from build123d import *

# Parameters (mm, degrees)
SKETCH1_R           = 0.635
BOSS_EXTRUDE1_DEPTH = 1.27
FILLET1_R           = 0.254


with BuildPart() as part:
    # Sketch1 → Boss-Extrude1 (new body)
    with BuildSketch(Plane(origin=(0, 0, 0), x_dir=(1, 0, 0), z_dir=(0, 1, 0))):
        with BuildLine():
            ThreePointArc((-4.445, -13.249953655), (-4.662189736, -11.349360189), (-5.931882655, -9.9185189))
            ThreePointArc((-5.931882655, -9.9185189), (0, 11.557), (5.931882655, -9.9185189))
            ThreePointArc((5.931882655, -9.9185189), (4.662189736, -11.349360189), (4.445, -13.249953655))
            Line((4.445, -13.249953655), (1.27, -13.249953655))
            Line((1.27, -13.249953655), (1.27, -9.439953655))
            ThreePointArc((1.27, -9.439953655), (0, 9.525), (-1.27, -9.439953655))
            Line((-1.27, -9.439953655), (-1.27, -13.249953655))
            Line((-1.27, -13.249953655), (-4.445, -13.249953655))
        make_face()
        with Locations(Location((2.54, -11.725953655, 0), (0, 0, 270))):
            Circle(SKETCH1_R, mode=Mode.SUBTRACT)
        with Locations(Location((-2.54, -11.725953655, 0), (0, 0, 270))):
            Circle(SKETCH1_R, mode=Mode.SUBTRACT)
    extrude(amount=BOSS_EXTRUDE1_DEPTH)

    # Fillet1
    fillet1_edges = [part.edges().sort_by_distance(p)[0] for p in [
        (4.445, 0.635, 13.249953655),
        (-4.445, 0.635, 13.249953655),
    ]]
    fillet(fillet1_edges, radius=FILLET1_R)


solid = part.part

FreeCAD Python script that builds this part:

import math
import FreeCAD as App
import Part
import Sketcher
from FreeCAD import Vector
Q = App.Units.Quantity


def edges_at(feature, points):
    """Names of the edges that pass closest to the given points."""
    edges = feature.Shape.Edges
    near = lambda p: min(range(len(edges)), key=lambda i: edges[i].distToShape(Part.Vertex(*p))[0])
    return sorted({f"Edge{near(p) + 1}" for p in points})

doc = App.newDocument("Part")
body = doc.addObject("PartDesign::Body", "Body")

# Sketch on XZ plane
sketch1 = body.newObject("Sketcher::SketchObject", "Sketch")
sketch1.AttachmentSupport = (doc.getObject("XZ_Plane"), [""])
sketch1.MapMode = "FlatFace"
sketch1.addGeometry([
    Part.ArcOfCircle(Part.Circle(Vector(-7.6, 12.6, 0), Vector(0, 0, 1), 3.2), math.radians(-59), math.radians(11)),  # 0
    Part.LineSegment(Vector(-4.4, 13.2, 0), Vector(-1.3, 13.2, 0)),  # 1
    Part.LineSegment(Vector(-1.3, 13.2, 0), Vector(-1.3, 9.4, 0)),  # 2
    Part.ArcOfCircle(Part.Circle(Vector(0, 0, 0), Vector(0, 0, 1), 9.5), math.radians(98), math.radians(442)),  # 3
    Part.LineSegment(Vector(1.3, 9.4, 0), Vector(1.3, 13.2, 0)),  # 4
    Part.LineSegment(Vector(1.3, 13.2, 0), Vector(4.4, 13.2, 0)),  # 5
    Part.ArcOfCircle(Part.Circle(Vector(7.6, 12.6, 0), Vector(0, 0, 1), 3.2), math.radians(169), math.radians(239)),  # 6
    Part.ArcOfCircle(Part.Circle(Vector(0, 0, 0), Vector(0, 0, 1), 11.6), math.radians(121), math.radians(419)),  # 7
    Part.Circle(Vector(2.5, 11.7, 0), Vector(0, 0, 1), 0.6),  # 8
    Part.Circle(Vector(-2.5, 11.7, 0), Vector(0, 0, 1), 0.6),  # 9
], False)
sketch1.addConstraint([
    Sketcher.Constraint("Coincident", 0, 2, 1, 1),
    Sketcher.Constraint("Coincident", 1, 2, 2, 1),
    Sketcher.Constraint("Coincident", 2, 2, 3, 1),
    Sketcher.Constraint("Coincident", 3, 2, 4, 1),
    Sketcher.Constraint("Coincident", 4, 2, 5, 1),
    Sketcher.Constraint("Coincident", 5, 2, 6, 1),
    Sketcher.Constraint("Tangent", 6, 2, 7, 2),
    Sketcher.Constraint("Tangent", 7, 1, 0, 1),
    Sketcher.Constraint("Horizontal", 1),
    Sketcher.Constraint("Vertical", 2),
    Sketcher.Constraint("Vertical", 4),
    Sketcher.Constraint("Horizontal", 5),
    Sketcher.Constraint("Coincident", 3, 3, -1, 1),
    Sketcher.Constraint("Coincident", 7, 3, -1, 1),
    Sketcher.Constraint("Equal", 0, 6),
    Sketcher.Constraint("Equal", 8, 9),
    Sketcher.Constraint("Symmetric", 8, 3, 9, 3, -2),
    Sketcher.Constraint("Symmetric", 1, 2, 4, 2, -2),
    Sketcher.Constraint("Horizontal", 0, 3, 6, 3),
    Sketcher.Constraint("Diameter", 8, Q("0.05 in")),
    Sketcher.Constraint("Radius", 0, Q("0.125 in")),
    Sketcher.Constraint("Radius", 3, Q("0.375 in")),
    Sketcher.Constraint("Radius", 7, Q("0.455 in")),
    Sketcher.Constraint("DistanceY", 2, 2, 2, 1, Q("0.15 in")),
    Sketcher.Constraint("DistanceX", -1, 1, 8, 3, Q("0.1 in")),
    Sketcher.Constraint("DistanceX", 2, 2, 3, 2, Q("0.1 in")),
    Sketcher.Constraint("DistanceX", 1, 1, 1, 2, Q("0.125 in")),
    Sketcher.Constraint("DistanceY", 9, 3, 0, 2, Q("0.06 in")),
])
pad1 = body.newObject("PartDesign::Pad", "Pad")
pad1.Profile = sketch1
pad1.Length = Q("0.05 in")
pad1.Reversed = True
doc.recompute()

fillet = body.newObject("PartDesign::Fillet", "Fillet")
fillet.Base = (pad1, edges_at(pad1, [(4.445, 0.635, 13.25), (-4.445, 0.635, 13.25)]))
fillet.Radius = Q("0.01 in")

doc.recompute()
